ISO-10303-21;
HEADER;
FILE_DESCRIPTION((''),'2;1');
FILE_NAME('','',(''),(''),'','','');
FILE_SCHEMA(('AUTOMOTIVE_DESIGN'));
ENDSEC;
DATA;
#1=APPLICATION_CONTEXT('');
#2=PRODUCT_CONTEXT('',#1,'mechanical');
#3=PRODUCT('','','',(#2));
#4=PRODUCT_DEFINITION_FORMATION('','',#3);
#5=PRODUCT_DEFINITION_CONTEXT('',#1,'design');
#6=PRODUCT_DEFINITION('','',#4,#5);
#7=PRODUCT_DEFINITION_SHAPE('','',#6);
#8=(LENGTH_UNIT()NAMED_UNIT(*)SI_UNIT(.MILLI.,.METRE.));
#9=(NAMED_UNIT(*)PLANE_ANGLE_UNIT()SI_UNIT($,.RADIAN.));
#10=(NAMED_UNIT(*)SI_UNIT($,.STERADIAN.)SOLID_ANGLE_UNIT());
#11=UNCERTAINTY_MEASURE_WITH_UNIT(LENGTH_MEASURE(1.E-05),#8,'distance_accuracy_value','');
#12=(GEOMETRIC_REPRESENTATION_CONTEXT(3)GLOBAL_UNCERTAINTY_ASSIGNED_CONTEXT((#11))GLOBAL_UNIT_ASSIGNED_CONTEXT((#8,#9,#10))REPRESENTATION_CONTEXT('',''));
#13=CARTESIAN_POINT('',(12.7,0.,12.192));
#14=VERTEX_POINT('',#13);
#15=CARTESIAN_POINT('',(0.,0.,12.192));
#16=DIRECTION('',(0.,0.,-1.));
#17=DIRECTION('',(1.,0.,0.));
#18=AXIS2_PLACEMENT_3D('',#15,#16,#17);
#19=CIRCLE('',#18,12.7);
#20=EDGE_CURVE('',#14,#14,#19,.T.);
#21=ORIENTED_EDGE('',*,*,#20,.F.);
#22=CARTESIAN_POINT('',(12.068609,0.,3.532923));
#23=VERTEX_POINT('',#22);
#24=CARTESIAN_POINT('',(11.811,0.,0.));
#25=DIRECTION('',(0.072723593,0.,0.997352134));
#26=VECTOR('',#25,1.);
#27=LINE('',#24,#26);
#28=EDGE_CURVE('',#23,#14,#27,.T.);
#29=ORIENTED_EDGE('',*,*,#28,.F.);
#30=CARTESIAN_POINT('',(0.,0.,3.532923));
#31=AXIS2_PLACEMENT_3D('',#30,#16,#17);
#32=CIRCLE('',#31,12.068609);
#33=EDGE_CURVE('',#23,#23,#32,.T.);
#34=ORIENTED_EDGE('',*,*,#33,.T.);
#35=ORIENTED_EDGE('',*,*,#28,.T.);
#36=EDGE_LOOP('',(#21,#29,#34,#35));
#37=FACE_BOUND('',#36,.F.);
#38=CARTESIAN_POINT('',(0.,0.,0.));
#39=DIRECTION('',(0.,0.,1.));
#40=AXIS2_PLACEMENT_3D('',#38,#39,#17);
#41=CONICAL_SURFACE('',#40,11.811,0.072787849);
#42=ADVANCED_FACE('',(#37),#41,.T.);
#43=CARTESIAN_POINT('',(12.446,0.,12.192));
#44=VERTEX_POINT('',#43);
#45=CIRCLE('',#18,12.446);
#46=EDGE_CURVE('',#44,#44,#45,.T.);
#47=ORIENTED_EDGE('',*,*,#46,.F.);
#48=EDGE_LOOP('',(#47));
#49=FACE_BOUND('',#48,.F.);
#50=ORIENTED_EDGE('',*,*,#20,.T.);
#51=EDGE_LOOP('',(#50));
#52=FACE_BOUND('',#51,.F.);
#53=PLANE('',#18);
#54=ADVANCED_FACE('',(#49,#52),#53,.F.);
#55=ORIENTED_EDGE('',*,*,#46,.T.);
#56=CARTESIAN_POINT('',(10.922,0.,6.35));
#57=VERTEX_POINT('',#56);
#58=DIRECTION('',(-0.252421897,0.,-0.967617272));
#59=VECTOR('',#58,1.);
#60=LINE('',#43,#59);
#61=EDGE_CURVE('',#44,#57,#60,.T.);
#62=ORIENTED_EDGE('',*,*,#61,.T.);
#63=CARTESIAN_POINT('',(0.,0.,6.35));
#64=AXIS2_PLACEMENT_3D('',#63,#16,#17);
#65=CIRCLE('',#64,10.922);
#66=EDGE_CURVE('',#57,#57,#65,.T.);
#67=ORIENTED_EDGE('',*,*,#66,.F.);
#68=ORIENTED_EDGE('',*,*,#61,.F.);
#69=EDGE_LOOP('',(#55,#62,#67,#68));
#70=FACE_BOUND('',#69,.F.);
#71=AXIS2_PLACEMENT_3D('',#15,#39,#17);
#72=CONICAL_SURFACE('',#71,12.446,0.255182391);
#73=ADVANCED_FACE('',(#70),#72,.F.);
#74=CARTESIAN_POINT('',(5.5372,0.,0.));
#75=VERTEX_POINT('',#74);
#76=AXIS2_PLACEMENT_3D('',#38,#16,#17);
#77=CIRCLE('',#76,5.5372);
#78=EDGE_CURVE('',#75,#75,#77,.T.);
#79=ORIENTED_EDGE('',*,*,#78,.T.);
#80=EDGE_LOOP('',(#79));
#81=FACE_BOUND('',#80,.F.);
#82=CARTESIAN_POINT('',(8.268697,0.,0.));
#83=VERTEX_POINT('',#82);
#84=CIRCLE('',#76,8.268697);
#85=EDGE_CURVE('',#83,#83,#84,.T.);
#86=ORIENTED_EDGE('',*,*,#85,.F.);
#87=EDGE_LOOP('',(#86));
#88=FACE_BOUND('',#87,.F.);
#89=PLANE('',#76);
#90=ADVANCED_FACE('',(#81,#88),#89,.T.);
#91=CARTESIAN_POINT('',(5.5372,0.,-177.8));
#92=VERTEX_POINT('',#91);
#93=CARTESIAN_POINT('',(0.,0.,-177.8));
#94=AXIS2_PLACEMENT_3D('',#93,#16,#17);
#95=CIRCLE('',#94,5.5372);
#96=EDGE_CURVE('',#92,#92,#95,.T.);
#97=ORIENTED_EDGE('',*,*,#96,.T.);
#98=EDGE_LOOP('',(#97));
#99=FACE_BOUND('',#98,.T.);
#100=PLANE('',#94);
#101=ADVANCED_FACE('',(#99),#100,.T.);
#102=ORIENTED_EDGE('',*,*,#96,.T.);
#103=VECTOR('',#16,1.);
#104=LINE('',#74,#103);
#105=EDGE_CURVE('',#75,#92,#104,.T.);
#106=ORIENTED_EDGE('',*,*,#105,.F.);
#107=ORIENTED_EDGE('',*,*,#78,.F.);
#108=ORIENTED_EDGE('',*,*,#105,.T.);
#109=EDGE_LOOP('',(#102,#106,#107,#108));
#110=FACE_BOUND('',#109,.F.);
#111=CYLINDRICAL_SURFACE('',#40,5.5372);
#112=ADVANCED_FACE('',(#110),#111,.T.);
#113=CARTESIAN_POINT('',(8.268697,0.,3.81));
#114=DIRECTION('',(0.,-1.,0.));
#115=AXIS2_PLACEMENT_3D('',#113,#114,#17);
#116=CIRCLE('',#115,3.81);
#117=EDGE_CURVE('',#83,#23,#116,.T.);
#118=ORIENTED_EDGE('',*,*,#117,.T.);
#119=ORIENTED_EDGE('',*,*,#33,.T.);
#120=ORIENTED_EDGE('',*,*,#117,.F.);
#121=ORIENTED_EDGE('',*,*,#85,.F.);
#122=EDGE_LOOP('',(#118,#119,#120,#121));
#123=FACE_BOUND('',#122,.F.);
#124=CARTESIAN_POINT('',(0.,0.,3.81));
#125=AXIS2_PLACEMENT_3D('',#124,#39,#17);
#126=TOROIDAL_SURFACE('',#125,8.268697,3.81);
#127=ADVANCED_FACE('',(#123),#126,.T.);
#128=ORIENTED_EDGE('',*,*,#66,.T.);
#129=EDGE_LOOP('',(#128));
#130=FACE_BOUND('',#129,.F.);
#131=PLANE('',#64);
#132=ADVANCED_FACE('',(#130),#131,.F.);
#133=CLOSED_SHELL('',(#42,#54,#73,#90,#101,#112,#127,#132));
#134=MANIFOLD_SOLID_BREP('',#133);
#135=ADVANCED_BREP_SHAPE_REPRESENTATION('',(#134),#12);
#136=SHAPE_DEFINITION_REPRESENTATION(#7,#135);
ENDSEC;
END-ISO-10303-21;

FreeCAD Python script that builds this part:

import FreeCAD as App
import Part
import Sketcher
from FreeCAD import Vector
Q = App.Units.Quantity


def edges_at(feature, points):
    """Names of the edges that pass closest to the given points."""
    edges = feature.Shape.Edges
    near = lambda p: min(range(len(edges)), key=lambda i: edges[i].distToShape(Part.Vertex(*p))[0])
    return sorted({f"Edge{near(p) + 1}" for p in points})


def add_polygon(sketch, points):
    """Adds a closed chain of lines whose ends are joined by coincident constraints."""
    first, n = sketch.GeometryCount, len(points)
    for a, b in zip(points, points[1:] + points[:1]):
        sketch.addGeometry(Part.LineSegment(App.Vector(*a, 0), App.Vector(*b, 0)), False)
    for i in range(n):
        sketch.addConstraint(Sketcher.Constraint("Coincident", first + i, 2, first + (i + 1) % n, 1))

doc = App.newDocument("Part")
body = doc.addObject("PartDesign::Body", "Body")

sketch1 = body.newObject("Sketcher::SketchObject", "Sketch")
sketch1.AttachmentSupport = (doc.getObject("XZ_Plane"), [""])
sketch1.MapMode = "FlatFace"
add_polygon(sketch1, [(0, 6.35), (0, 0), (11.81, 0), (12.7, 12.19), (12.45, 12.19), (10.92, 6.35)])
sketch1.addConstraint(Sketcher.Constraint("Vertical", 0))
sketch1.addConstraint(Sketcher.Constraint("Horizontal", 1))
sketch1.addConstraint(Sketcher.Constraint("Horizontal", 3))
sketch1.addConstraint(Sketcher.Constraint("Horizontal", 5))
sketch1.addConstraint(Sketcher.Constraint("Coincident", 0, 2, -1, 1))
sketch1.addConstraint(Sketcher.Constraint("DistanceX", 3, 2, 3, 1, Q("0.01 in")))
sketch1.addConstraint(Sketcher.Constraint("DistanceX", 5, 2, 5, 1, Q("0.43 in")))
sketch1.addConstraint(Sketcher.Constraint("DistanceY", 0, 2, 0, 1, Q("0.25 in")))
sketch1.addConstraint(Sketcher.Constraint("DistanceX", -1, 1, 2, 2, Q("0.5 in")))
sketch1.addConstraint(Sketcher.Constraint("DistanceX", 1, 1, 1, 2, Q("0.465 in")))
sketch1.addConstraint(Sketcher.Constraint("DistanceY", -1, 1, 2, 2, Q("0.48 in")))
revolution = body.newObject("PartDesign::Revolution", "Revolution")
revolution.Profile = sketch1
revolution.ReferenceAxis = (sketch1, ["V_Axis"])
revolution.Angle = 360
doc.recompute()

fillet = body.newObject("PartDesign::Fillet", "Fillet")
fillet.Base = (revolution, edges_at(revolution, [(-11.811, 0, 0)]))
fillet.Radius = Q("0.15 in")

sketch2 = body.newObject("Sketcher::SketchObject", "Sketch001")
sketch2.AttachmentSupport = (doc.getObject("XY_Plane"), [""])
sketch2.MapMode = "FlatFace"
sketch2.addGeometry(Part.Circle(Vector(0, 0, 0), Vector(0, 0, 1), 6), False)
sketch2.addConstraint(Sketcher.Constraint("Coincident", 0, 3, -1, 1))
sketch2.addConstraint(Sketcher.Constraint("Diameter", 0, Q("0.436 in")))
pad1 = body.newObject("PartDesign::Pad", "Pad")
pad1.Profile = sketch2
pad1.Length = Q("7 in")
pad1.Reversed = True

doc.recompute()
